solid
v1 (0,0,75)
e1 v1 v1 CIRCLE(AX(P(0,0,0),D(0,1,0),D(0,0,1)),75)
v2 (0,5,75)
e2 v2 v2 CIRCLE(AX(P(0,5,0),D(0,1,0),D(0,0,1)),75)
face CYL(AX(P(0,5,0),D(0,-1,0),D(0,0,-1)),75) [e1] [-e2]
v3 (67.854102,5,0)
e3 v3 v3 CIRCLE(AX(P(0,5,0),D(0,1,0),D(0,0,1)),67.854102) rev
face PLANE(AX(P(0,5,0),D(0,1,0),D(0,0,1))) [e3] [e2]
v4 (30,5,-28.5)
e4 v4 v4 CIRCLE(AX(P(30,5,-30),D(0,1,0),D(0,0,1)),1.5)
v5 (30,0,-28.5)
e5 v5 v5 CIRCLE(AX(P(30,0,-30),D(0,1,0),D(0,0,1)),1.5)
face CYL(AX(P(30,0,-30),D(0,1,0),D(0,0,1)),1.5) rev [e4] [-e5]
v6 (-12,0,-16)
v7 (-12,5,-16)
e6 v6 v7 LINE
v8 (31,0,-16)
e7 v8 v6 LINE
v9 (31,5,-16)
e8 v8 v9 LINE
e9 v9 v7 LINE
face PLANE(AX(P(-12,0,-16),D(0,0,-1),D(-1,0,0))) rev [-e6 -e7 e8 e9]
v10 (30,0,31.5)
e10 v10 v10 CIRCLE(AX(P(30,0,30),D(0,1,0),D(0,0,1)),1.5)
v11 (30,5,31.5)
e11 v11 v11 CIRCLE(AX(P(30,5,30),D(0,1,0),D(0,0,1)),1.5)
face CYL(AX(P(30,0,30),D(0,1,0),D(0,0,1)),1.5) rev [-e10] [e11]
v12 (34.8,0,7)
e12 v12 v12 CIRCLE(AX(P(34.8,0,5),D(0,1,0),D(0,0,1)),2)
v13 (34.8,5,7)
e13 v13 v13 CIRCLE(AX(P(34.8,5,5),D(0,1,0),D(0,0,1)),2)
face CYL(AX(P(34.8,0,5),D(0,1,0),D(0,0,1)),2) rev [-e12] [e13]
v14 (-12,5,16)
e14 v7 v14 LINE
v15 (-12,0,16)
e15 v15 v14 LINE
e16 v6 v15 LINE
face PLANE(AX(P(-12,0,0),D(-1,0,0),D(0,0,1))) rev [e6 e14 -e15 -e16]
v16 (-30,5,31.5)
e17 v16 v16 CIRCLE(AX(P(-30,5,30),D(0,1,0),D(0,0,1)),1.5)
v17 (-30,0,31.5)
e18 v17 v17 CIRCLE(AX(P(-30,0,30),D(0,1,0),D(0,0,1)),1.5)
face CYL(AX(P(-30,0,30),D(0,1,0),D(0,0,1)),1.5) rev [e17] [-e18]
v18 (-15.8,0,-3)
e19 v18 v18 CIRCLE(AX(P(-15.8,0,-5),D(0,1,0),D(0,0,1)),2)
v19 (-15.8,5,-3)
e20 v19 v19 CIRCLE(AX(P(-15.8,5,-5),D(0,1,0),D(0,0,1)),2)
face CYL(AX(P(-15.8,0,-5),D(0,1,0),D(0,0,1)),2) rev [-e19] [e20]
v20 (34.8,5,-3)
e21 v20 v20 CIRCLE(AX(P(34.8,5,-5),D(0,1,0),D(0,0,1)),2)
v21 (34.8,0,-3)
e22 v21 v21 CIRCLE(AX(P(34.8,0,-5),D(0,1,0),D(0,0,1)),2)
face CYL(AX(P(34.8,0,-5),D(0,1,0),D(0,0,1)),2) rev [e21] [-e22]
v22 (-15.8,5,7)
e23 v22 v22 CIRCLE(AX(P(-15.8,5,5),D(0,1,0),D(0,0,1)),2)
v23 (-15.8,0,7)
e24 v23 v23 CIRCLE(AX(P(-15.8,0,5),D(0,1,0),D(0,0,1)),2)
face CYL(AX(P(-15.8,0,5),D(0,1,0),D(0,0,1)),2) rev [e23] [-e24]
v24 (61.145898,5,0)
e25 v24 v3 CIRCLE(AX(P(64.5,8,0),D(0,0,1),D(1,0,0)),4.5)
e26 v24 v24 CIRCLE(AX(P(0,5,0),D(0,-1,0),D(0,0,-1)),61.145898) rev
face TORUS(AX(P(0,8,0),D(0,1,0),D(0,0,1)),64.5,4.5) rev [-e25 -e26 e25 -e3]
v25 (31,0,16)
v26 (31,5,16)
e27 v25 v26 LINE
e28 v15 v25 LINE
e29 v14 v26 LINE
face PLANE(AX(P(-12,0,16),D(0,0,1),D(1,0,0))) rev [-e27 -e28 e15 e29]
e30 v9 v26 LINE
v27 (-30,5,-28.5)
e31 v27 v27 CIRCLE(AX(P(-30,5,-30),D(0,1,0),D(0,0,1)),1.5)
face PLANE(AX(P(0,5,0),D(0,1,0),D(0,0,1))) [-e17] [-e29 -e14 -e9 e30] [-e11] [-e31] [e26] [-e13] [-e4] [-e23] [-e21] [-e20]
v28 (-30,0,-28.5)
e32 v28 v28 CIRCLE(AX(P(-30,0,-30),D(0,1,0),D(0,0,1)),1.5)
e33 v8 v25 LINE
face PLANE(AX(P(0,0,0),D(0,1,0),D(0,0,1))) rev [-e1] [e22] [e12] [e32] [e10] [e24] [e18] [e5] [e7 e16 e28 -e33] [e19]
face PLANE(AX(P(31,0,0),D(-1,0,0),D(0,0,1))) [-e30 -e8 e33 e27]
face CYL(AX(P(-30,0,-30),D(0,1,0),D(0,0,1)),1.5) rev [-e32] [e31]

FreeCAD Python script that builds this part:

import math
import FreeCAD as App
import Part
import Sketcher
from FreeCAD import Vector


def add_polygon(sketch, points):
    """Adds a closed chain of lines whose ends are joined by coincident constraints."""
    first, n = sketch.GeometryCount, len(points)
    for a, b in zip(points, points[1:] + points[:1]):
        sketch.addGeometry(Part.LineSegment(App.Vector(*a, 0), App.Vector(*b, 0)), False)
    for i in range(n):
        sketch.addConstraint(Sketcher.Constraint("Coincident", first + i, 2, first + (i + 1) % n, 1))

doc = App.newDocument("Part")
params = doc.addObject("Spreadsheet::Sheet", "Params")
for row, (alias, value) in enumerate([
    ("sketch1_diameter", "150 mm"),
    ("pad1_length", "5 mm"),
    ("sketch2_width", "43 mm"),
    ("sketch2_height", "26 mm"),
    ("pocket1_length", "5 mm"),
    ("sketch3_radius", "1.5 mm"),
    ("pocket2_length", "5 mm"),
    ("sketch4_diameter", "9 mm"),
    ("sketch5_diameter", "129 mm"),
    ("sketch6_width", "43 mm"),
    ("sketch6_height", "3 mm"),
    ("pocket3_length", "5 mm"),
    ("sketch7_diameter", "4 mm"),
    ("pocket4_length", "5 mm"),
], start=1):
    params.set(f"A{row}", alias)
    params.set(f"B{row}", "=" + value)
    params.setAlias(f"B{row}", alias)

body = doc.addObject("PartDesign::Body", "Body")

sketch1 = doc.addObject("Sketcher::SketchObject", "Sketch")
body.addObject(sketch1)
sketch1.AttachmentSupport = (doc.XZ_Plane, [""])
sketch1.MapMode = "FlatFace"
sketch1.addGeometry(Part.Circle(Vector(0, 0, 0), Vector(0, 0, 1), 75), False)
sketch1.addConstraint(Sketcher.Constraint("Coincident", 0, 3, -1, 1))
sketch1.addConstraint(Sketcher.Constraint("Diameter", 0, 150.0))
sketch1.setExpression("Constraints[1]", "Params.sketch1_diameter")
pad1 = doc.addObject("PartDesign::Pad", "Pad")
body.addObject(pad1)
pad1.Profile = sketch1
pad1.setExpression("Length", "Params.pad1_length")
pad1.Reversed = True

sketch2 = doc.addObject("Sketcher::SketchObject", "Sketch001")
body.addObject(sketch2)
sketch2.AttachmentSupport = (doc.XZ_Plane, [""])
sketch2.MapMode = "FlatFace"
sketch2.AttachmentOffset = App.Placement(Vector(0, 0, -5), App.Rotation())
add_polygon(sketch2, [(-12, 13), (31, 13), (31, -13), (-12, -13)])
sketch2.addConstraint(Sketcher.Constraint("Horizontal", 0))
sketch2.addConstraint(Sketcher.Constraint("Vertical", 1))
sketch2.addConstraint(Sketcher.Constraint("Horizontal", 2))
sketch2.addConstraint(Sketcher.Constraint("Vertical", 3))
sketch2.addConstraint(Sketcher.Constraint("DistanceX", 0, 1, 0, 2, 43.0))
sketch2.addConstraint(Sketcher.Constraint("DistanceY", 1, 2, 1, 1, 26.0))
sketch2.addConstraint(Sketcher.Constraint("DistanceX", -1, 1, 0, 2, 31.0))
sketch2.addConstraint(Sketcher.Constraint("DistanceY", -1, 1, 0, 2, 13.0))
sketch2.setExpression("Constraints[8]", "Params.sketch2_width")
sketch2.setExpression("Constraints[9]", "Params.sketch2_height")
pocket1 = doc.addObject("PartDesign::Pocket", "Pocket")
body.addObject(pocket1)
pocket1.Profile = sketch2
pocket1.setExpression("Length", "Params.pocket1_length")
pocket1.Reversed = True

sketch3 = doc.addObject("Sketcher::SketchObject", "Sketch002")
body.addObject(sketch3)
sketch3.AttachmentSupport = (doc.XZ_Plane, [""])
sketch3.MapMode = "FlatFace"
sketch3.AttachmentOffset = App.Placement(Vector(0, 0, -5), App.Rotation())
sketch3.addGeometry(Part.ArcOfCircle(Part.Circle(Vector(-30, -30, 0), Vector(0, 0, 1), 1.5), math.radians(90), math.radians(360)), False)
sketch3.addGeometry(Part.ArcOfCircle(Part.Circle(Vector(-30, -30, 0), Vector(0, 0, 1), 1.5), math.radians(0), math.radians(90)), False)
sketch3.addGeometry(Part.ArcOfCircle(Part.Circle(Vector(30, -30, 0), Vector(0, 0, 1), 1.5), math.radians(90), math.radians(180)), False)
sketch3.addGeometry(Part.ArcOfCircle(Part.Circle(Vector(30, -30, 0), Vector(0, 0, 1), 1.5), math.radians(0), math.radians(90)), False)
sketch3.addGeometry(Part.ArcOfCircle(Part.Circle(Vector(30, -30, 0), Vector(0, 0, 1), 1.5), math.radians(180), math.radians(360)), False)
sketch3.addGeometry(Part.ArcOfCircle(Part.Circle(Vector(30, 30, 0), Vector(0, 0, 1), 1.5), math.radians(180), math.radians(270)), False)
sketch3.addGeometry(Part.ArcOfCircle(Part.Circle(Vector(30, 30, 0), Vector(0, 0, 1), 1.5), math.radians(0), math.radians(180)), False)
sketch3.addGeometry(Part.ArcOfCircle(Part.Circle(Vector(30, 30, 0), Vector(0, 0, 1), 1.5), math.radians(-90), math.radians(0)), False)
sketch3.addGeometry(Part.ArcOfCircle(Part.Circle(Vector(-30, 30, 0), Vector(0, 0, 1), 1.5), math.radians(-90), math.radians(0)), False)
sketch3.addGeometry(Part.ArcOfCircle(Part.Circle(Vector(-30, 30, 0), Vector(0, 0, 1), 1.5), math.radians(0), math.radians(270)), False)
sketch3.addConstraint(Sketcher.Constraint("Tangent", 0, 1, 1, 2))
sketch3.addConstraint(Sketcher.Constraint("Coincident", 1, 1, 0, 2))
sketch3.addConstraint(Sketcher.Constraint("Tangent", 2, 1, 3, 2))
sketch3.addConstraint(Sketcher.Constraint("Tangent", 3, 1, 4, 2))
sketch3.addConstraint(Sketcher.Constraint("Tangent", 4, 1, 2, 2))
sketch3.addConstraint(Sketcher.Constraint("Tangent", 5, 1, 6, 2))
sketch3.addConstraint(Sketcher.Constraint("Tangent", 6, 1, 7, 2))
sketch3.addConstraint(Sketcher.Constraint("Tangent", 7, 1, 5, 2))
sketch3.addConstraint(Sketcher.Constraint("Tangent", 8, 1, 9, 2))
sketch3.addConstraint(Sketcher.Constraint("Coincident", 9, 1, 8, 2))
sketch3.addConstraint(Sketcher.Constraint("Equal", 1, 2))
sketch3.addConstraint(Sketcher.Constraint("Equal", 4, 5))
sketch3.addConstraint(Sketcher.Constraint("Equal", 7, 8))
sketch3.addConstraint(Sketcher.Constraint("Symmetric", 0, 3, 5, 3, -1, 1))
sketch3.addConstraint(Sketcher.Constraint("Symmetric", 2, 3, 8, 3, -1, 1))
sketch3.addConstraint(Sketcher.Constraint("Symmetric", 0, 3, 2, 3, -2))
sketch3.addConstraint(Sketcher.Constraint("Horizontal", 4, 3, 1, 1))
sketch3.addConstraint(Sketcher.Constraint("Horizontal", 1, 1, 3, 1))
sketch3.addConstraint(Sketcher.Constraint("Horizontal", 3, 1, 4, 1))
sketch3.addConstraint(Sketcher.Constraint("Horizontal", 9, 3, 5, 1))
sketch3.addConstraint(Sketcher.Constraint("Horizontal", 5, 1, 6, 1))
sketch3.addConstraint(Sketcher.Constraint("Horizontal", 6, 1, 9, 1))
sketch3.addConstraint(Sketcher.Constraint("Vertical", 9, 3, 0, 1))
sketch3.addConstraint(Sketcher.Constraint("Vertical", 7, 3, 2, 1))
sketch3.addConstraint(Sketcher.Constraint("Vertical", 2, 1, 7, 1))
sketch3.addConstraint(Sketcher.Constraint("Vertical", 0, 1, 8, 1))
sketch3.addConstraint(Sketcher.Constraint("Radius", 0, 1.5))
sketch3.addConstraint(Sketcher.Constraint("DistanceX", 0, 3, -1, 1, 30.0))
sketch3.addConstraint(Sketcher.Constraint("DistanceY", 0, 3, -1, 1, 30.0))
sketch3.setExpression("Constraints[26]", "Params.sketch3_radius")
pocket2 = doc.addObject("PartDesign::Pocket", "Pocket001")
body.addObject(pocket2)
pocket2.Profile = sketch3
pocket2.setExpression("Length", "Params.pocket2_length")
pocket2.Reversed = True

sketch4 = doc.addObject("Sketcher::SketchObject", "Sketch003")
body.addObject(sketch4)
sketch4.AttachmentSupport = (doc.XY_Plane, [""])
sketch4.MapMode = "FlatFace"
sketch4.addGeometry(Part.Circle(Vector(64.5, 8, 0), Vector(0, 0, 1), 4.5), False)
sketch4.addConstraint(Sketcher.Constraint("Diameter", 0, 9.0))
sketch4.addConstraint(Sketcher.Constraint("DistanceY", -1, 1, 0, 3, 8.0))
sketch4.addConstraint(Sketcher.Constraint("DistanceX", -1, 1, 0, 3, 64.5))
sketch4.setExpression("Constraints[0]", "Params.sketch4_diameter")

sketch5 = doc.addObject("Sketcher::SketchObject", "Sketch004")
body.addObject(sketch5)
sketch5.AttachmentSupport = (doc.XZ_Plane, [""])
sketch5.MapMode = "FlatFace"
sketch5.AttachmentOffset = App.Placement(Vector(0, 0, -5), App.Rotation())
sketch5.addGeometry(Part.Circle(Vector(0, 0, 0), Vector(0, 0, 1), 64), False)
sketch5.addConstraint(Sketcher.Constraint("Coincident", 0, 3, -1, 1))
sketch5.addConstraint(Sketcher.Constraint("Diameter", 0, 129.0))
sketch5.setExpression("Constraints[1]", "Params.sketch5_diameter")
doc.recompute()

subtractivepipe = doc.addObject("PartDesign::SubtractivePipe", "SubtractivePipe")
body.addObject(subtractivepipe)
subtractivepipe.Profile = sketch4
subtractivepipe.Spine = (sketch5, ["Edge1"])

sketch6 = doc.addObject("Sketcher::SketchObject", "Sketch005")
body.addObject(sketch6)
sketch6.AttachmentSupport = (doc.XZ_Plane, [""])
sketch6.MapMode = "FlatFace"
sketch6.AttachmentOffset = App.Placement(Vector(0, 0, -5), App.Rotation())
add_polygon(sketch6, [(-12, -16), (-12, -13), (31, -13), (31, -16)])
add_polygon(sketch6, [(-12, 13), (-12, 16), (31, 16), (31, 13)])
sketch6.addConstraint(Sketcher.Constraint("Vertical", 0))
sketch6.addConstraint(Sketcher.Constraint("Horizontal", 1))
sketch6.addConstraint(Sketcher.Constraint("Vertical", 2))
sketch6.addConstraint(Sketcher.Constraint("Horizontal", 3))
sketch6.addConstraint(Sketcher.Constraint("Vertical", 4))
sketch6.addConstraint(Sketcher.Constraint("Horizontal", 5))
sketch6.addConstraint(Sketcher.Constraint("Vertical", 6))
sketch6.addConstraint(Sketcher.Constraint("Horizontal", 7))
sketch6.addConstraint(Sketcher.Constraint("Symmetric", 3, 2, 4, 2, -1))
sketch6.addConstraint(Sketcher.Constraint("Symmetric", 1, 2, 6, 2, -1))
sketch6.addConstraint(Sketcher.Constraint("DistanceX", 1, 1, 1, 2, 43.0))
sketch6.addConstraint(Sketcher.Constraint("DistanceY", 0, 1, 0, 2, 3.0))
sketch6.addConstraint(Sketcher.Constraint("DistanceX", 0, 2, -1, 1, 12.0))
sketch6.addConstraint(Sketcher.Constraint("DistanceY", 0, 2, -1, 1, 13.0))
sketch6.setExpression("Constraints[18]", "Params.sketch6_width")
sketch6.setExpression("Constraints[19]", "Params.sketch6_height")
pocket3 = doc.addObject("PartDesign::Pocket", "Pocket002")
body.addObject(pocket3)
pocket3.Profile = sketch6
pocket3.setExpression("Length", "Params.pocket3_length")
pocket3.Reversed = True

sketch7 = doc.addObject("Sketcher::SketchObject", "Sketch006")
body.addObject(sketch7)
sketch7.AttachmentSupport = (doc.XZ_Plane, [""])
sketch7.MapMode = "FlatFace"
sketch7.AttachmentOffset = App.Placement(Vector(0, 0, -5), App.Rotation())
sketch7.addGeometry(Part.Circle(Vector(34.8, -5, 0), Vector(0, 0, 1), 2), False)
sketch7.addGeometry(Part.Circle(Vector(34.8, 5, 0), Vector(0, 0, 1), 2), False)
sketch7.addGeometry(Part.Circle(Vector(-15.8, 5, 0), Vector(0, 0, 1), 2), False)
sketch7.addGeometry(Part.Circle(Vector(-15.8, -5, 0), Vector(0, 0, 1), 2), False)
sketch7.addConstraint(Sketcher.Constraint("Equal", 0, 1))
sketch7.addConstraint(Sketcher.Constraint("Equal", 1, 2))
sketch7.addConstraint(Sketcher.Constraint("Equal", 2, 3))
sketch7.addConstraint(Sketcher.Constraint("Symmetric", 0, 3, 1, 3, -1))
sketch7.addConstraint(Sketcher.Constraint("Symmetric", 2, 3, 3, 3, -1))
sketch7.addConstraint(Sketcher.Constraint("Horizontal", 1, 3, 2, 3))
sketch7.addConstraint(Sketcher.Constraint("Diameter", 0, 4.0))
sketch7.addConstraint(Sketcher.Constraint("DistanceY", 0, 3, -1, 1, 5.0))
sketch7.addConstraint(Sketcher.Constraint("DistanceX", -1, 1, 0, 3, 34.8))
sketch7.addConstraint(Sketcher.Constraint("DistanceX", 2, 3, -1, 1, 15.8))
sketch7.setExpression("Constraints[6]", "Params.sketch7_diameter")
pocket4 = doc.addObject("PartDesign::Pocket", "Pocket003")
body.addObject(pocket4)
pocket4.Profile = sketch7
pocket4.setExpression("Length", "Params.pocket4_length")
pocket4.Reversed = True

doc.recompute()
